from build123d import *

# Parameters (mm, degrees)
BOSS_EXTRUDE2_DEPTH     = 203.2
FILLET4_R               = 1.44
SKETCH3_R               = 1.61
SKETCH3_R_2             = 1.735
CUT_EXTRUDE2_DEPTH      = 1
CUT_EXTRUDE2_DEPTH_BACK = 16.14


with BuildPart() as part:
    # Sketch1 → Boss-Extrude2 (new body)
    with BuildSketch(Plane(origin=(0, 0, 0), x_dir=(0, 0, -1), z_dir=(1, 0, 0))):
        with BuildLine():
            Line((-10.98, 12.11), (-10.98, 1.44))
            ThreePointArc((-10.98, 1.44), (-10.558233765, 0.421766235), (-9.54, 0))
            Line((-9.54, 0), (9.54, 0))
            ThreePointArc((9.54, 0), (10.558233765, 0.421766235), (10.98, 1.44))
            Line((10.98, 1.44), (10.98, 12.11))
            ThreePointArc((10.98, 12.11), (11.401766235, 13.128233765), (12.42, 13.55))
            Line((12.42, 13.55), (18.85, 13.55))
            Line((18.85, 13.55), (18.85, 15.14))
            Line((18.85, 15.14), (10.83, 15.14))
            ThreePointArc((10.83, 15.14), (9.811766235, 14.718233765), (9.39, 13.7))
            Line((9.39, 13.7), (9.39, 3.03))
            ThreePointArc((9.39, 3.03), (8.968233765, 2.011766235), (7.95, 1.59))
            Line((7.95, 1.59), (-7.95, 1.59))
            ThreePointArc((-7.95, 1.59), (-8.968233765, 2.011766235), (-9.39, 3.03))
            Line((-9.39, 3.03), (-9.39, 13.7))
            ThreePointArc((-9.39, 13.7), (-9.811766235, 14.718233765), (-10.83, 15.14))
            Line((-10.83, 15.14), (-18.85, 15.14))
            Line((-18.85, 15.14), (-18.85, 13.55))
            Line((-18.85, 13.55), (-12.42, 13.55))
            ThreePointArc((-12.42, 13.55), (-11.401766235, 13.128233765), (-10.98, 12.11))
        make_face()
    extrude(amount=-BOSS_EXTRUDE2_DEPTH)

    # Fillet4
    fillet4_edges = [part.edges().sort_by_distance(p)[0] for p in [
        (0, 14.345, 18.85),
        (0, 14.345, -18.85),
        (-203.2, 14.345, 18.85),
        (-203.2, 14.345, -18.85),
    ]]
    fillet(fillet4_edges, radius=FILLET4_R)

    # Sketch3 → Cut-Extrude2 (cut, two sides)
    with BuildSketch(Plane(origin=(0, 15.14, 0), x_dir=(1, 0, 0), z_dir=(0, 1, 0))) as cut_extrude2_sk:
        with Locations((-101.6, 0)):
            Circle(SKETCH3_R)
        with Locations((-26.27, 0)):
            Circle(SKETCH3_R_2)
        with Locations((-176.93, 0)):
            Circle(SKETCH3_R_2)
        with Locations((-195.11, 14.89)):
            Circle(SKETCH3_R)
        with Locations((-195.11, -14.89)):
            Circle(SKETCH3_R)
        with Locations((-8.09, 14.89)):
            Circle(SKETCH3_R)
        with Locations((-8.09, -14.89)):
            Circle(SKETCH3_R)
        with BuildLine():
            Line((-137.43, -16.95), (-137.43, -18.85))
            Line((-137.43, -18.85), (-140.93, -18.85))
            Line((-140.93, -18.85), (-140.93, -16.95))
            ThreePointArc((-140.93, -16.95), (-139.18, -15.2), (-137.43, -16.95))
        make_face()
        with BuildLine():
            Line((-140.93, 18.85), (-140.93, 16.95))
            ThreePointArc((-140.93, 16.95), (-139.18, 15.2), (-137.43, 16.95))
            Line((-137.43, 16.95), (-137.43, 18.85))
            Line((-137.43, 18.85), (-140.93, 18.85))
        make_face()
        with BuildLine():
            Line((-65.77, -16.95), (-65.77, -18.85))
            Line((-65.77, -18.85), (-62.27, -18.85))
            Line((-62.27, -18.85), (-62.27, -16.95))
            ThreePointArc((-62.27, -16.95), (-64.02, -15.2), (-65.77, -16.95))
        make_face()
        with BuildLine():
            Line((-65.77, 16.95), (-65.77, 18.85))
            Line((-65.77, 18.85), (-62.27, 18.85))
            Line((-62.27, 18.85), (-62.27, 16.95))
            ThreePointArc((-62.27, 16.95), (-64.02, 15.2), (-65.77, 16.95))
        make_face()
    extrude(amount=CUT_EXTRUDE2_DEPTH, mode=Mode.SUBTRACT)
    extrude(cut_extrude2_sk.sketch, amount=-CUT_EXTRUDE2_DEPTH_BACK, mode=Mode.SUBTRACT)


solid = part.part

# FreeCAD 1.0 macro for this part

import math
import FreeCAD as App
import Part
import Sketcher


def edges_at(feature, points):
    """Names of the edges that pass closest to the given points."""
    edges = feature.Shape.Edges
    near = lambda p: min(range(len(edges)), key=lambda i: edges[i].distToShape(Part.Vertex(*p))[0])
    return sorted({f"Edge{near(p) + 1}" for p in points})

doc = App.newDocument("Part")
body = doc.addObject("PartDesign::Body", "Body")

sketch1 = body.newObject("Sketcher::SketchObject", "Sketch")
sketch1.AttachmentSupport = (doc.getObject("YZ_Plane"), [""])
sketch1.MapMode = "FlatFace"
sketch1.addGeometry(Part.LineSegment(App.Vector(12.1, 11, 0), App.Vector(1.4, 11, 0)), False)
sketch1.addGeometry(Part.ArcOfCircle(Part.Circle(App.Vector(1.4, 9.5, 0), App.Vector(0, 0, 1), 1.4), math.radians(90), math.radians(180)), False)
sketch1.addGeometry(Part.LineSegment(App.Vector(0, 9.5, 0), App.Vector(0, -9.5, 0)), False)
sketch1.addGeometry(Part.ArcOfCircle(Part.Circle(App.Vector(1.4, -9.5, 0), App.Vector(0, 0, 1), 1.4), math.radians(180), math.radians(270)), False)
sketch1.addGeometry(Part.LineSegment(App.Vector(1.4, -11, 0), App.Vector(12.1, -11, 0)), False)
sketch1.addGeometry(Part.ArcOfCircle(Part.Circle(App.Vector(12.1, -12.4, 0), App.Vector(0, 0, 1), 1.4), math.radians(0), math.radians(90)), False)
sketch1.addGeometry(Part.LineSegment(App.Vector(13.6, -12.4, 0), App.Vector(13.6, -18.9, 0)), False)
sketch1.addGeometry(Part.LineSegment(App.Vector(13.6, -18.9, 0), App.Vector(15.1, -18.9, 0)), False)
sketch1.addGeometry(Part.LineSegment(App.Vector(15.1, -18.9, 0), App.Vector(15.1, -10.8, 0)), False)
sketch1.addGeometry(Part.ArcOfCircle(Part.Circle(App.Vector(13.7, -10.8, 0), App.Vector(0, 0, 1), 1.4), math.radians(0), math.radians(90)), False)
sketch1.addGeometry(Part.LineSegment(App.Vector(13.7, -9.4, 0), App.Vector(3, -9.4, 0)), False)
sketch1.addGeometry(Part.ArcOfCircle(Part.Circle(App.Vector(3, -8, 0), App.Vector(0, 0, 1), 1.4), math.radians(180), math.radians(270)), False)
sketch1.addGeometry(Part.LineSegment(App.Vector(1.6, -8, 0), App.Vector(1.6, 8, 0)), False)
sketch1.addGeometry(Part.ArcOfCircle(Part.Circle(App.Vector(3, 8, 0), App.Vector(0, 0, 1), 1.4), math.radians(90), math.radians(180)), False)
sketch1.addGeometry(Part.LineSegment(App.Vector(3, 9.4, 0), App.Vector(13.7, 9.4, 0)), False)
sketch1.addGeometry(Part.ArcOfCircle(Part.Circle(App.Vector(13.7, 10.8, 0), App.Vector(0, 0, 1), 1.4), math.radians(-90), math.radians(0)), False)
sketch1.addGeometry(Part.LineSegment(App.Vector(15.1, 10.8, 0), App.Vector(15.1, 18.9, 0)), False)
sketch1.addGeometry(Part.LineSegment(App.Vector(15.1, 18.9, 0), App.Vector(13.6, 18.9, 0)), False)
sketch1.addGeometry(Part.LineSegment(App.Vector(13.6, 18.9, 0), App.Vector(13.6, 12.4, 0)), False)
sketch1.addGeometry(Part.ArcOfCircle(Part.Circle(App.Vector(12.1, 12.4, 0), App.Vector(0, 0, 1), 1.4), math.radians(-90), math.radians(0)), False)
sketch1.addConstraint(Sketcher.Constraint("Tangent", 0, 2, 1, 1))
sketch1.addConstraint(Sketcher.Constraint("Tangent", 1, 2, 2, 1))
sketch1.addConstraint(Sketcher.Constraint("Tangent", 2, 2, 3, 1))
sketch1.addConstraint(Sketcher.Constraint("Tangent", 3, 2, 4, 1))
sketch1.addConstraint(Sketcher.Constraint("Tangent", 4, 2, 5, 2))
sketch1.addConstraint(Sketcher.Constraint("Tangent", 5, 1, 6, 1))
sketch1.addConstraint(Sketcher.Constraint("Coincident", 6, 2, 7, 1))
sketch1.addConstraint(Sketcher.Constraint("Coincident", 7, 2, 8, 1))
sketch1.addConstraint(Sketcher.Constraint("Tangent", 8, 2, 9, 1))
sketch1.addConstraint(Sketcher.Constraint("Tangent", 9, 2, 10, 1))
sketch1.addConstraint(Sketcher.Constraint("Tangent", 10, 2, 11, 2))
sketch1.addConstraint(Sketcher.Constraint("Tangent", 11, 1, 12, 1))
sketch1.addConstraint(Sketcher.Constraint("Tangent", 12, 2, 13, 2))
sketch1.addConstraint(Sketcher.Constraint("Tangent", 13, 1, 14, 1))
sketch1.addConstraint(Sketcher.Constraint("Tangent", 14, 2, 15, 1))
sketch1.addConstraint(Sketcher.Constraint("Tangent", 15, 2, 16, 1))
sketch1.addConstraint(Sketcher.Constraint("Coincident", 16, 2, 17, 1))
sketch1.addConstraint(Sketcher.Constraint("Coincident", 17, 2, 18, 1))
sketch1.addConstraint(Sketcher.Constraint("Tangent", 18, 2, 19, 2))
sketch1.addConstraint(Sketcher.Constraint("Tangent", 19, 1, 0, 1))
sketch1.addConstraint(Sketcher.Constraint("Horizontal", 0))
sketch1.addConstraint(Sketcher.Constraint("Vertical", 2))
sketch1.addConstraint(Sketcher.Constraint("Horizontal", 4))
sketch1.addConstraint(Sketcher.Constraint("Vertical", 6))
sketch1.addConstraint(Sketcher.Constraint("Horizontal", 7))
sketch1.addConstraint(Sketcher.Constraint("Vertical", 8))
sketch1.addConstraint(Sketcher.Constraint("Horizontal", 10))
sketch1.addConstraint(Sketcher.Constraint("Vertical", 12))
sketch1.addConstraint(Sketcher.Constraint("Horizontal", 14))
sketch1.addConstraint(Sketcher.Constraint("Vertical", 16))
sketch1.addConstraint(Sketcher.Constraint("Horizontal", 17))
sketch1.addConstraint(Sketcher.Constraint("Vertical", 18))
sketch1.addConstraint(Sketcher.Constraint("Equal", 1, 3))
sketch1.addConstraint(Sketcher.Constraint("Equal", 3, 5))
sketch1.addConstraint(Sketcher.Constraint("Equal", 5, 9))
sketch1.addConstraint(Sketcher.Constraint("Equal", 9, 11))
sketch1.addConstraint(Sketcher.Constraint("Equal", 11, 13))
sketch1.addConstraint(Sketcher.Constraint("Equal", 13, 15))
sketch1.addConstraint(Sketcher.Constraint("Equal", 15, 19))
sketch1.addConstraint(Sketcher.Constraint("Symmetric", 1, 2, 2, 2, -1, 1))
sketch1.addConstraint(Sketcher.Constraint("Symmetric", 9, 3, 15, 3, -1))
sketch1.addConstraint(Sketcher.Constraint("Symmetric", 6, 2, 17, 2, -1))
sketch1.addConstraint(Sketcher.Constraint("Equal", 4, 10))
sketch1.addConstraint(Sketcher.Constraint("Radius", 1, 1.44))
sketch1.addConstraint(Sketcher.Constraint("DistanceY", 12, 1, 12, 2, 15.9))
sketch1.addConstraint(Sketcher.Constraint("DistanceX", 0, 2, 0, 1, 10.67))
sketch1.addConstraint(Sketcher.Constraint("DistanceX", 7, 1, 7, 2, 1.59))
sketch1.addConstraint(Sketcher.Constraint("DistanceY", 2, 2, 2, 1, 19.08))
sketch1.addConstraint(Sketcher.Constraint("DistanceY", 6, 2, 6, 1, 6.43))
pad1 = body.newObject("PartDesign::Pad", "Pad")
pad1.Profile = sketch1
pad1.Length = 203.2
pad1.Reversed = True
doc.recompute()

fillet = body.newObject("PartDesign::Fillet", "Fillet")
fillet.Base = (pad1, edges_at(pad1, [
    (0, 14.345, 18.85),
    (0, 14.345, -18.85),
    (-203.2, 14.345, 18.85),
    (-203.2, 14.345, -18.85),
]))
fillet.Radius = 1.44

sketch2 = body.newObject("Sketcher::SketchObject", "Sketch001")
sketch2.AttachmentSupport = (doc.getObject("XZ_Plane"), [""])
sketch2.MapMode = "FlatFace"
sketch2.AttachmentOffset = App.Placement(App.Vector(0, 0, -15.14), App.Rotation())
sketch2.addGeometry(Part.Circle(App.Vector(-101.6, 0, 0), App.Vector(0, 0, 1), 1.6), False)
sketch2.addGeometry(Part.Circle(App.Vector(-26.3, 0, 0), App.Vector(0, 0, 1), 1.7), False)
sketch2.addGeometry(Part.Circle(App.Vector(-176.9, 0, 0), App.Vector(0, 0, 1), 1.7), False)
sketch2.addGeometry(Part.Circle(App.Vector(-195.1, -14.9, 0), App.Vector(0, 0, 1), 1.6), False)
sketch2.addGeometry(Part.Circle(App.Vector(-195.1, 14.9, 0), App.Vector(0, 0, 1), 1.6), False)
sketch2.addGeometry(Part.Circle(App.Vector(-8.1, -14.9, 0), App.Vector(0, 0, 1), 1.6), False)
sketch2.addGeometry(Part.Circle(App.Vector(-8.1, 14.9, 0), App.Vector(0, 0, 1), 1.6), False)
sketch2.addGeometry(Part.LineSegment(App.Vector(-137.4, 18.9, 0), App.Vector(-137.4, 16.9, 0)), False)
sketch2.addGeometry(Part.ArcOfCircle(Part.Circle(App.Vector(-139.2, 16.9, 0), App.Vector(0, 0, 1), 1.8), math.radians(180), math.radians(360)), False)
sketch2.addGeometry(Part.LineSegment(App.Vector(-140.9, 16.9, 0), App.Vector(-140.9, 18.9, 0)), False)
sketch2.addGeometry(Part.LineSegment(App.Vector(-140.9, 18.9, 0), App.Vector(-137.4, 18.9, 0)), False)
sketch2.addGeometry(Part.LineSegment(App.Vector(-140.9, -18.9, 0), App.Vector(-140.9, -16.9, 0)), False)
sketch2.addGeometry(Part.ArcOfCircle(Part.Circle(App.Vector(-139.2, -16.9, 0), App.Vector(0, 0, 1), 1.8), math.radians(0), math.radians(180)), False)
sketch2.addGeometry(Part.LineSegment(App.Vector(-137.4, -16.9, 0), App.Vector(-137.4, -18.9, 0)), False)
sketch2.addGeometry(Part.LineSegment(App.Vector(-137.4, -18.9, 0), App.Vector(-140.9, -18.9, 0)), False)
sketch2.addGeometry(Part.LineSegment(App.Vector(-65.8, 16.9, 0), App.Vector(-65.8, 18.9, 0)), False)
sketch2.addGeometry(Part.LineSegment(App.Vector(-65.8, 18.9, 0), App.Vector(-62.3, 18.9, 0)), False)
sketch2.addGeometry(Part.LineSegment(App.Vector(-62.3, 18.9, 0), App.Vector(-62.3, 16.9, 0)), False)
sketch2.addGeometry(Part.ArcOfCircle(Part.Circle(App.Vector(-64, 16.9, 0), App.Vector(0, 0, 1), 1.8), math.radians(180), math.radians(360)), False)
sketch2.addGeometry(Part.LineSegment(App.Vector(-65.8, -18.9, 0), App.Vector(-65.8, -16.9, 0)), False)
sketch2.addGeometry(Part.ArcOfCircle(Part.Circle(App.Vector(-64, -16.9, 0), App.Vector(0, 0, 1), 1.8), math.radians(0), math.radians(180)), False)
sketch2.addGeometry(Part.LineSegment(App.Vector(-62.3, -16.9, 0), App.Vector(-62.3, -18.9, 0)), False)
sketch2.addGeometry(Part.LineSegment(App.Vector(-62.3, -18.9, 0), App.Vector(-65.8, -18.9, 0)), False)
sketch2.addConstraint(Sketcher.Constraint("Tangent", 7, 2, 8, 2))
sketch2.addConstraint(Sketcher.Constraint("Tangent", 8, 1, 9, 1))
sketch2.addConstraint(Sketcher.Constraint("Coincident", 9, 2, 10, 1))
sketch2.addConstraint(Sketcher.Constraint("Coincident", 10, 2, 7, 1))
sketch2.addConstraint(Sketcher.Constraint("Tangent", 11, 2, 12, 2))
sketch2.addConstraint(Sketcher.Constraint("Tangent", 12, 1, 13, 1))
sketch2.addConstraint(Sketcher.Constraint("Coincident", 13, 2, 14, 1))
sketch2.addConstraint(Sketcher.Constraint("Coincident", 14, 2, 11, 1))
sketch2.addConstraint(Sketcher.Constraint("Coincident", 15, 2, 16, 1))
sketch2.addConstraint(Sketcher.Constraint("Coincident", 16, 2, 17, 1))
sketch2.addConstraint(Sketcher.Constraint("Tangent", 17, 2, 18, 2))
sketch2.addConstraint(Sketcher.Constraint("Tangent", 18, 1, 15, 1))
sketch2.addConstraint(Sketcher.Constraint("Tangent", 19, 2, 20, 2))
sketch2.addConstraint(Sketcher.Constraint("Tangent", 20, 1, 21, 1))
sketch2.addConstraint(Sketcher.Constraint("Coincident", 21, 2, 22, 1))
sketch2.addConstraint(Sketcher.Constraint("Coincident", 22, 2, 19, 1))
sketch2.addConstraint(Sketcher.Constraint("Vertical", 7))
sketch2.addConstraint(Sketcher.Constraint("Vertical", 9))
sketch2.addConstraint(Sketcher.Constraint("Horizontal", 10))
sketch2.addConstraint(Sketcher.Constraint("Vertical", 11))
sketch2.addConstraint(Sketcher.Constraint("Vertical", 13))
sketch2.addConstraint(Sketcher.Constraint("Horizontal", 14))
sketch2.addConstraint(Sketcher.Constraint("Vertical", 15))
sketch2.addConstraint(Sketcher.Constraint("Horizontal", 16))
sketch2.addConstraint(Sketcher.Constraint("Vertical", 17))
sketch2.addConstraint(Sketcher.Constraint("Vertical", 19))
sketch2.addConstraint(Sketcher.Constraint("Vertical", 21))
sketch2.addConstraint(Sketcher.Constraint("Horizontal", 22))
sketch2.addConstraint(Sketcher.Constraint("Equal", 1, 2))
sketch2.addConstraint(Sketcher.Constraint("Equal", 0, 3))
sketch2.addConstraint(Sketcher.Constraint("Equal", 3, 4))
sketch2.addConstraint(Sketcher.Constraint("Equal", 4, 5))
sketch2.addConstraint(Sketcher.Constraint("Equal", 5, 6))
sketch2.addConstraint(Sketcher.Constraint("Equal", 8, 12))
sketch2.addConstraint(Sketcher.Constraint("Equal", 12, 18))
sketch2.addConstraint(Sketcher.Constraint("Equal", 18, 20))
sketch2.addConstraint(Sketcher.Constraint("Symmetric", 3, 3, 4, 3, -1))
sketch2.addConstraint(Sketcher.Constraint("Symmetric", 5, 3, 6, 3, -1))
sketch2.addConstraint(Sketcher.Constraint("Symmetric", 8, 3, 12, 3, -1))
sketch2.addConstraint(Sketcher.Constraint("Symmetric", 18, 3, 20, 3, -1))
sketch2.addConstraint(Sketcher.Constraint("PointOnObject", 0, 3, -1))
sketch2.addConstraint(Sketcher.Constraint("PointOnObject", 1, 3, -1))
sketch2.addConstraint(Sketcher.Constraint("PointOnObject", 2, 3, -1))
sketch2.addConstraint(Sketcher.Constraint("Horizontal", 3, 3, 5, 3))
sketch2.addConstraint(Sketcher.Constraint("Horizontal", 8, 3, 18, 3))
sketch2.addConstraint(Sketcher.Constraint("Horizontal", 10, 2, 15, 2))
sketch2.addConstraint(Sketcher.Constraint("Horizontal", 14, 2, 21, 2))
sketch2.addConstraint(Sketcher.Constraint("Equal", 9, 11))
sketch2.addConstraint(Sketcher.Constraint("Diameter", 0, 3.22))
sketch2.addConstraint(Sketcher.Constraint("Diameter", 1, 3.47))
sketch2.addConstraint(Sketcher.Constraint("Radius", 8, 1.75))
sketch2.addConstraint(Sketcher.Constraint("DistanceY", 7, 2, 7, 1, 1.9))
sketch2.addConstraint(Sketcher.Constraint("DistanceX", 2, 3, 8, 1, 36.0))
sketch2.addConstraint(Sketcher.Constraint("DistanceX", 16, 2, 1, 3, 36.0))
sketch2.addConstraint(Sketcher.Constraint("DistanceX", 0, 3, -1, 1, 101.6))
sketch2.addConstraint(Sketcher.Constraint("DistanceY", 12, 3, 8, 3, 33.9))
sketch2.addConstraint(Sketcher.Constraint("DistanceX", 1, 3, -1, 1, 26.27))
sketch2.addConstraint(Sketcher.Constraint("DistanceX", 2, 3, -1, 1, 176.93))
sketch2.addConstraint(Sketcher.Constraint("DistanceX", 3, 3, -1, 1, 195.11))
sketch2.addConstraint(Sketcher.Constraint("DistanceY", 3, 3, -1, 1, 14.89))
sketch2.addConstraint(Sketcher.Constraint("DistanceX", 5, 3, -1, 1, 8.09))
pocket1 = body.newObject("PartDesign::Pocket", "Pocket")
pocket1.Profile = sketch2
pocket1.Type = "ThroughAll"
pocket1.Midplane = True

doc.recompute()
